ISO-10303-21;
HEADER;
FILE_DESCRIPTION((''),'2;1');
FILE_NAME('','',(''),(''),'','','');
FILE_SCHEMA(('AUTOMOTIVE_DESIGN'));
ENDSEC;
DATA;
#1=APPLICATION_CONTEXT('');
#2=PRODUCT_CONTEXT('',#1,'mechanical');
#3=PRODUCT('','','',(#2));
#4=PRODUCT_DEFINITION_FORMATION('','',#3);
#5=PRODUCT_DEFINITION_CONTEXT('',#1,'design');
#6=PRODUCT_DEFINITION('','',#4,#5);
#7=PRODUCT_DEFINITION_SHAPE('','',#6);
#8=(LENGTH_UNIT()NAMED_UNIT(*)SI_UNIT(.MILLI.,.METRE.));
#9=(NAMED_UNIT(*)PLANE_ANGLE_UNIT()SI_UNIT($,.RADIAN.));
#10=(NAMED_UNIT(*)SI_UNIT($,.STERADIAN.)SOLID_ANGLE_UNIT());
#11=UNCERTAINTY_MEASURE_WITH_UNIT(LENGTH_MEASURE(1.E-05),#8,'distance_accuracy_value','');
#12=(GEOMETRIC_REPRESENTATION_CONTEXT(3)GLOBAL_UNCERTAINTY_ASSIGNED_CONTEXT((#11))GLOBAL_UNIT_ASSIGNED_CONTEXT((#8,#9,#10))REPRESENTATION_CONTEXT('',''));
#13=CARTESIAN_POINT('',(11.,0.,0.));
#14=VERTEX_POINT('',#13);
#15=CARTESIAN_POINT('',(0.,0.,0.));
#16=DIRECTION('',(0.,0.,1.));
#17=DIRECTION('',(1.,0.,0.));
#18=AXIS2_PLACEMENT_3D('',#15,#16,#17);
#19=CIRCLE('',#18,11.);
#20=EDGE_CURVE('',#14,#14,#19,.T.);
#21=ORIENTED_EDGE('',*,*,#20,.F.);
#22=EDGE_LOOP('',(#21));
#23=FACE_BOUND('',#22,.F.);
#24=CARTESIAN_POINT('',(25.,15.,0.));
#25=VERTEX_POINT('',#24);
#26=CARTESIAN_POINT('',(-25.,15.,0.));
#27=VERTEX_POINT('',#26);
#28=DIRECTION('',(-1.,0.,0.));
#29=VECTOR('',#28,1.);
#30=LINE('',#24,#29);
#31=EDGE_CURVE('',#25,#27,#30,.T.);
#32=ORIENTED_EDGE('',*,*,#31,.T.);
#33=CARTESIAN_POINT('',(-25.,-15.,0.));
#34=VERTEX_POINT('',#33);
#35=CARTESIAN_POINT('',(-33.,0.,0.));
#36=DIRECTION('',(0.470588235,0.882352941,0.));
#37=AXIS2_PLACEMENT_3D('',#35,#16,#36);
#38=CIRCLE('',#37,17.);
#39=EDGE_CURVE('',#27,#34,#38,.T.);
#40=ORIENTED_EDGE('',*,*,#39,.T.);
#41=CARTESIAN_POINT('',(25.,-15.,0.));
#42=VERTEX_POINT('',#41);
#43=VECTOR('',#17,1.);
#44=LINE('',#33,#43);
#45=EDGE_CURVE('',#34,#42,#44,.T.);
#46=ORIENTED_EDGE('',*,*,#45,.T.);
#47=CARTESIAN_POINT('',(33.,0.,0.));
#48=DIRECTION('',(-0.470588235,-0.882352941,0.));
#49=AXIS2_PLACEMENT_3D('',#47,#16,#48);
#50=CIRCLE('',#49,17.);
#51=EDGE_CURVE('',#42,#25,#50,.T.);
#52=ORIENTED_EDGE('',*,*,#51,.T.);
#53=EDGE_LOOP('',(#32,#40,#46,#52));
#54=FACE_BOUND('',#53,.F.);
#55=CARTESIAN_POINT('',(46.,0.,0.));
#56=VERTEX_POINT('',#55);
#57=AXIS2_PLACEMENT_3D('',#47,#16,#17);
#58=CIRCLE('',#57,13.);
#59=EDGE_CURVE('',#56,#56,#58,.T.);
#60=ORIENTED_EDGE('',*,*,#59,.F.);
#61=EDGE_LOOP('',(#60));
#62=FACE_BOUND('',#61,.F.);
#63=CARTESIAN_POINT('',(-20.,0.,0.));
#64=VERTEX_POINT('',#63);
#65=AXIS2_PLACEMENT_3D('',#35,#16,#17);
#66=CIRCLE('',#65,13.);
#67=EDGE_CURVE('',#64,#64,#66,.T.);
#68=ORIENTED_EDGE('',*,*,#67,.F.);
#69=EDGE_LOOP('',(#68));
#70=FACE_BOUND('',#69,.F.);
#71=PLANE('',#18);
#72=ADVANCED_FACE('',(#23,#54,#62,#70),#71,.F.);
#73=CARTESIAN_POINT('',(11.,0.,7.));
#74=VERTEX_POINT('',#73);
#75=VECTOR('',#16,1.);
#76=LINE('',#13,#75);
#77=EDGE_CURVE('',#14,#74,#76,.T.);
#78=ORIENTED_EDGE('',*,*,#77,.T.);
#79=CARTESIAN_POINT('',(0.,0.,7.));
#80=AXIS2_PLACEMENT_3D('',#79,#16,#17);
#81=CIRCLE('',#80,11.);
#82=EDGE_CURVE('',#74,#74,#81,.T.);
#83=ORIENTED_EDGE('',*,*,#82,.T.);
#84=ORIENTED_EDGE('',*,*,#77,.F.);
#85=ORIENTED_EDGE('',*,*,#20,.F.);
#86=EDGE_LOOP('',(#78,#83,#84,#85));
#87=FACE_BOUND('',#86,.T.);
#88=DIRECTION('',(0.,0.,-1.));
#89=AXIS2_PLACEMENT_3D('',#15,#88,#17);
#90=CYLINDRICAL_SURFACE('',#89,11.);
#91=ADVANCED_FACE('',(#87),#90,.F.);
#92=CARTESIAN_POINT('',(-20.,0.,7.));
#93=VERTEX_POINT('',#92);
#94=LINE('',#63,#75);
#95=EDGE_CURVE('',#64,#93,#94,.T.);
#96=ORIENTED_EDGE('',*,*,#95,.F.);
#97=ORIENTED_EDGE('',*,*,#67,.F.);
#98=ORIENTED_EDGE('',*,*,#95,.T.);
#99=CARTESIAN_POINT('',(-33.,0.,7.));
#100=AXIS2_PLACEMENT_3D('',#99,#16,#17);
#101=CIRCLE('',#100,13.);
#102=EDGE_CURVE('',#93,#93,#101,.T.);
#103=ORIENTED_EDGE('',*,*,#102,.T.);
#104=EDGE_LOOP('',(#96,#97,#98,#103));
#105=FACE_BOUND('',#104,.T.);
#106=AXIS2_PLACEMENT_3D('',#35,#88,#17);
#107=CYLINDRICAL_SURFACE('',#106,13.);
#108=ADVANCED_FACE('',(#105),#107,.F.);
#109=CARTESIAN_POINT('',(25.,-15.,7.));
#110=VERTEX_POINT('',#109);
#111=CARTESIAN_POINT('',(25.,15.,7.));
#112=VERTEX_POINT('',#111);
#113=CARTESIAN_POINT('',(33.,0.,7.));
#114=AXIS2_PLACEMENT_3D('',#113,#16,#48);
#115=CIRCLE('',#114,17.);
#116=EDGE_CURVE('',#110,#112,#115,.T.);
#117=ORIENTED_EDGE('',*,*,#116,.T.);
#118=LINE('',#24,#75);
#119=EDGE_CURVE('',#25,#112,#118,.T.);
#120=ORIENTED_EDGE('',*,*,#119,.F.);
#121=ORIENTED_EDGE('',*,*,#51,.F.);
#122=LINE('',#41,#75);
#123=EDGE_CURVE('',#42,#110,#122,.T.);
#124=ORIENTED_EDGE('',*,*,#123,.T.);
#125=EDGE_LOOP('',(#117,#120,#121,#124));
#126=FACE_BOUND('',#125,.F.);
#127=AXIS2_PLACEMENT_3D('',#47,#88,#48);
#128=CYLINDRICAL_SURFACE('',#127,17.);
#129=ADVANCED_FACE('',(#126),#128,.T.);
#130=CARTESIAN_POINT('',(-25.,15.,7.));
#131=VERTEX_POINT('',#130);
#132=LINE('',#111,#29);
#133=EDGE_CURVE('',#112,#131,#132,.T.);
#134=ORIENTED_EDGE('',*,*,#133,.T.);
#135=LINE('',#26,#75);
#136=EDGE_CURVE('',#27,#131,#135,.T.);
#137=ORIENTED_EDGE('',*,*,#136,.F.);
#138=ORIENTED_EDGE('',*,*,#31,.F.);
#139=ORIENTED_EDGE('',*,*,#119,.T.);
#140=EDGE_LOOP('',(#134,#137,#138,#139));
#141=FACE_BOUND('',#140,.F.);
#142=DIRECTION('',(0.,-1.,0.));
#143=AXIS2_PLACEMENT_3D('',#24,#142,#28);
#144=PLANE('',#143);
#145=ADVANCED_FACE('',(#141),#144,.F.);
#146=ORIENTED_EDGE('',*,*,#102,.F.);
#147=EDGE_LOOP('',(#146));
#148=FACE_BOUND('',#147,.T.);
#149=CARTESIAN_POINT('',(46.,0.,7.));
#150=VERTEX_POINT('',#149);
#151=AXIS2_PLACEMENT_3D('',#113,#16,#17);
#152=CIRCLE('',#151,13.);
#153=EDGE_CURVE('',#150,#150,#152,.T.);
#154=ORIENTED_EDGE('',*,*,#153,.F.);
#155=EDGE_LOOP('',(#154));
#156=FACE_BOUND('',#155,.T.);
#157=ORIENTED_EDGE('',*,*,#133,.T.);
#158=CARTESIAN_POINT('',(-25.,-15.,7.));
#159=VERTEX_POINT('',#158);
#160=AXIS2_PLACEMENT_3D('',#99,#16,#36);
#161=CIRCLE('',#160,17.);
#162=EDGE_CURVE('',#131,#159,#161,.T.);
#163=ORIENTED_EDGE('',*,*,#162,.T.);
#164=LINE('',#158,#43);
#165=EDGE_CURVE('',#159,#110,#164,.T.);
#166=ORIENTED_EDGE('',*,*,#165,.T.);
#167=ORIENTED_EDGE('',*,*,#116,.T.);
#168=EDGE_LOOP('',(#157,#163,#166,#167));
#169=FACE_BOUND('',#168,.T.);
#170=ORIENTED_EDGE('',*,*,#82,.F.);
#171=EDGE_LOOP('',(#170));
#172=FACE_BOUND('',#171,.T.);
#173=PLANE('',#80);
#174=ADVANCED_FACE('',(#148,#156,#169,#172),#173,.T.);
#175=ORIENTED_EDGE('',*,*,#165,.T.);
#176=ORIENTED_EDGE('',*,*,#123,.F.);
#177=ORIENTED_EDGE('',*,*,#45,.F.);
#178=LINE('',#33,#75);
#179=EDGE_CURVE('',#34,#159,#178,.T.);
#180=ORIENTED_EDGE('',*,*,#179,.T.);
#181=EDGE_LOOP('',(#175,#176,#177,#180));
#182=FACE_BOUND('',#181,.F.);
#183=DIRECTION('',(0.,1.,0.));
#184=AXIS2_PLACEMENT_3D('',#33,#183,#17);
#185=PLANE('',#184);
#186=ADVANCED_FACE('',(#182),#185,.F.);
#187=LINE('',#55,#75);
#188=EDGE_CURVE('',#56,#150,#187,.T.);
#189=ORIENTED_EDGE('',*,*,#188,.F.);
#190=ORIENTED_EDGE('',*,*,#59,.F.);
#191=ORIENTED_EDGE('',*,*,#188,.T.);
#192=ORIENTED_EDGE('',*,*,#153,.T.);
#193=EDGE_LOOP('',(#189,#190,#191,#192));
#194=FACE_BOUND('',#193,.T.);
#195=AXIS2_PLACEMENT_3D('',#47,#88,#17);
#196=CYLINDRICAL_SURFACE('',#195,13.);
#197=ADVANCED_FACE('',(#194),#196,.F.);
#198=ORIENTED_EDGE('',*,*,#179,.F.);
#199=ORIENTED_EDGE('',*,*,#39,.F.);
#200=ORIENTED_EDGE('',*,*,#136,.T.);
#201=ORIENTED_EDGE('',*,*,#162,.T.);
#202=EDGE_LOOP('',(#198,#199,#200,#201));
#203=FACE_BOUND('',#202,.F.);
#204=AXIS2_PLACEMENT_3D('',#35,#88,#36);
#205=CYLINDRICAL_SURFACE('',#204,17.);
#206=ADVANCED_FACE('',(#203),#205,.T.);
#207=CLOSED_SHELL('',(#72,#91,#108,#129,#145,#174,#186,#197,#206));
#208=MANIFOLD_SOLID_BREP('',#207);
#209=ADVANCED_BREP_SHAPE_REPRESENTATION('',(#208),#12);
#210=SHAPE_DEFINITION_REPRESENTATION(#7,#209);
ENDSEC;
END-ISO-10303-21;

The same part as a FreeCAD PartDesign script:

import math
import FreeCAD as App
import Part
import Sketcher
from FreeCAD import Vector
Q = App.Units.Quantity

doc = App.newDocument("Part")
params = doc.addObject("Spreadsheet::Sheet", "Params")
for row, (alias, value) in enumerate([
    ("sketch1_diameter", "26 mm"),
    ("sketch1_diameter2", "22 mm"),
    ("sketch1_radius", "17 mm"),
    ("sketch1_width", "50 mm"),
    ("pad1_length", "7 mm"),
], start=1):
    params.set(f"A{row}", alias)
    params.set(f"B{row}", "=" + value)
    params.setAlias(f"B{row}", alias)

body = doc.addObject("PartDesign::Body", "Body")

sketch1 = body.newObject("Sketcher::SketchObject", "Sketch")
sketch1.AttachmentSupport = (doc.getObject("XY_Plane"), [""])
sketch1.MapMode = "FlatFace"
sketch1.addGeometry([
    Part.LineSegment(Vector(25, 15, 0), Vector(-25, 15, 0)),
    Part.ArcOfCircle(Part.Circle(Vector(-33, 0, 0), Vector(0, 0, 1), 17), math.radians(62), math.radians(298)),
    Part.LineSegment(Vector(-25, -15, 0), Vector(25, -15, 0)),
    Part.ArcOfCircle(Part.Circle(Vector(33, 0, 0), Vector(0, 0, 1), 17), math.radians(-118), math.radians(118)),
    Part.Circle(Vector(-33, 0, 0), Vector(0, 0, 1), 13),
    Part.Circle(Vector(0, 0, 0), Vector(0, 0, 1), 11),
    Part.Circle(Vector(33, 0, 0), Vector(0, 0, 1), 13),
], False)
sketch1.addConstraint([
    Sketcher.Constraint("Coincident", 0, 2, 1, 1),
    Sketcher.Constraint("Coincident", 1, 2, 2, 1),
    Sketcher.Constraint("Coincident", 2, 2, 3, 1),
    Sketcher.Constraint("Coincident", 3, 2, 0, 1),
    Sketcher.Constraint("Horizontal", 0),
    Sketcher.Constraint("Horizontal", 2),
    Sketcher.Constraint("Coincident", 5, 3, -1, 1),
    Sketcher.Constraint("Coincident", 4, 3, 1, 3),
    Sketcher.Constraint("Coincident", 6, 3, 3, 3),
    Sketcher.Constraint("Equal", 1, 3),
    Sketcher.Constraint("Equal", 4, 6),
    Sketcher.Constraint("Symmetric", 1, 3, 3, 3, -1, 1),
    Sketcher.Constraint("Symmetric", 0, 2, 1, 2, -1),
    Sketcher.Constraint("Diameter", 4, Q("26 mm")),
    Sketcher.Constraint("Diameter", 5, Q("22 mm")),
    Sketcher.Constraint("Radius", 1, Q("17 mm")),
    Sketcher.Constraint("DistanceX", 0, 2, 0, 1, Q("50 mm")),
    Sketcher.Constraint("DistanceX", 1, 3, -1, 1, Q("33 mm")),
])
sketch1.setExpression("Constraints[13]", "Params.sketch1_diameter")
sketch1.setExpression("Constraints[14]", "Params.sketch1_diameter2")
sketch1.setExpression("Constraints[15]", "Params.sketch1_radius")
sketch1.setExpression("Constraints[16]", "Params.sketch1_width")
pad1 = body.newObject("PartDesign::Pad", "Pad")
pad1.Profile = sketch1
pad1.setExpression("Length", "Params.pad1_length")

doc.recompute()
